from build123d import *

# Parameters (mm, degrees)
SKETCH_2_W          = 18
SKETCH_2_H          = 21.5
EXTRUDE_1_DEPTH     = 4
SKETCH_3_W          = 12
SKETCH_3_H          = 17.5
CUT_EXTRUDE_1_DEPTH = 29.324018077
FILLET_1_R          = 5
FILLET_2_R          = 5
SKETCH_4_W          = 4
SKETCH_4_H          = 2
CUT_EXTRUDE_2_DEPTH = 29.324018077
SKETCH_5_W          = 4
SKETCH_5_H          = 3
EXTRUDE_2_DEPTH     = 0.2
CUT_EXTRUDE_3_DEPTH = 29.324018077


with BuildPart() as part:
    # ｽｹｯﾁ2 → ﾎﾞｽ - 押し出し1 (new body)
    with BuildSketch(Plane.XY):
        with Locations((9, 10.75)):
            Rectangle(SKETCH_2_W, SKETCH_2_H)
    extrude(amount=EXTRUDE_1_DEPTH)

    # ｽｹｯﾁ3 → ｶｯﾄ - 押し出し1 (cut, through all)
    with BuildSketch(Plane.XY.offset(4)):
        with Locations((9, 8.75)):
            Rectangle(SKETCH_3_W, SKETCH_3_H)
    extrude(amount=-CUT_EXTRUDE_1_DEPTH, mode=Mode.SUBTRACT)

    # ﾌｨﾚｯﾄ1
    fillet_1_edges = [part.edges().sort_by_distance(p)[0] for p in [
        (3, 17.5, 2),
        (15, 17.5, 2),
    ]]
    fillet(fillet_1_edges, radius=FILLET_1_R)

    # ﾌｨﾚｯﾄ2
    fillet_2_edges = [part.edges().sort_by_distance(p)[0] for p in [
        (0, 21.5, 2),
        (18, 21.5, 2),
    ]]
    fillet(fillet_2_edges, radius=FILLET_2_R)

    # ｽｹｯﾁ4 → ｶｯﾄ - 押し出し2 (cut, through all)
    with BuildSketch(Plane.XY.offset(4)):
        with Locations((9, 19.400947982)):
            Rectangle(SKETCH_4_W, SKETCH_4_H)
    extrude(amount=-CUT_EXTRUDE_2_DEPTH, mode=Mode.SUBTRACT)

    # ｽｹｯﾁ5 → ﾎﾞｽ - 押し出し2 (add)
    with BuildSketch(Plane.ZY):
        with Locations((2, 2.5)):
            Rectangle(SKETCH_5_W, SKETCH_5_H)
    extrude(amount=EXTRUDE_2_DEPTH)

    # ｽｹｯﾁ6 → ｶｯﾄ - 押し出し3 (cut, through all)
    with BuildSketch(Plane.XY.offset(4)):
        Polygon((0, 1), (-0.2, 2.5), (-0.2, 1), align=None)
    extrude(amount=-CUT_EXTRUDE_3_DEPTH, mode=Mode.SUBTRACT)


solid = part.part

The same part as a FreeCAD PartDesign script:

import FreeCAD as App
import Part
import Sketcher
Q = App.Units.Quantity


def edges_at(feature, points):
    """Names of the edges that pass closest to the given points."""
    edges = feature.Shape.Edges
    near = lambda p: min(range(len(edges)), key=lambda i: edges[i].distToShape(Part.Vertex(*p))[0])
    return sorted({f"Edge{near(p) + 1}" for p in points})

doc = App.newDocument("Part")
params = doc.addObject("Spreadsheet::Sheet", "Params")
for row, (alias, value) in enumerate([
    ("sketch1_width", "18 mm"),
    ("sketch1_height", "21.5 mm"),
    ("pad1_length", "4 mm"),
    ("sketch2_width", "12 mm"),
    ("sketch2_height", "17.5 mm"),
    ("fillet_radius", "5 mm"),
    ("fillet2_radius", "5 mm"),
    ("sketch3_width", "4 mm"),
    ("sketch3_height", "2 mm"),
    ("sketch4_width", "3 mm"),
    ("sketch4_height", "4 mm"),
    ("pad2_length", "0.2 mm"),
    ("sketch5_width", "0.2 mm"),
    ("sketch5_height", "1.5 mm"),
], start=1):
    params.set(f"A{row}", alias)
    params.set(f"B{row}", "=" + value)
    params.setAlias(f"B{row}", alias)

body = doc.addObject("PartDesign::Body", "Body")

# Sketch on XY plane
sketch1 = body.newObject("Sketcher::SketchObject", "Sketch")
sketch1.AttachmentSupport = (doc.getObject("XY_Plane"), [""])
sketch1.MapMode = "FlatFace"
sketch1.addGeometry(Part.LineSegment(App.Vector(0, 21.5, 0), App.Vector(0, 0, 0)), False)
sketch1.addGeometry(Part.LineSegment(App.Vector(0, 0, 0), App.Vector(18, 0, 0)), False)
sketch1.addGeometry(Part.LineSegment(App.Vector(18, 0, 0), App.Vector(18, 21.5, 0)), False)
sketch1.addGeometry(Part.LineSegment(App.Vector(18, 21.5, 0), App.Vector(0, 21.5, 0)), False)
sketch1.addConstraint(Sketcher.Constraint("Coincident", 0, 2, 1, 1))
sketch1.addConstraint(Sketcher.Constraint("Coincident", 1, 2, 2, 1))
sketch1.addConstraint(Sketcher.Constraint("Coincident", 2, 2, 3, 1))
sketch1.addConstraint(Sketcher.Constraint("Coincident", 3, 2, 0, 1))
sketch1.addConstraint(Sketcher.Constraint("Vertical", 0))
sketch1.addConstraint(Sketcher.Constraint("Horizontal", 1))
sketch1.addConstraint(Sketcher.Constraint("Vertical", 2))
sketch1.addConstraint(Sketcher.Constraint("Horizontal", 3))
sketch1.addConstraint(Sketcher.Constraint("Coincident", 0, 2, -1, 1))
sketch1.addConstraint(Sketcher.Constraint("DistanceX", 1, 1, 1, 2, Q("18 mm")))
sketch1.addConstraint(Sketcher.Constraint("DistanceY", 0, 2, 0, 1, Q("21.5 mm")))
sketch1.setExpression("Constraints[9]", "Params.sketch1_width")
sketch1.setExpression("Constraints[10]", "Params.sketch1_height")
pad1 = body.newObject("PartDesign::Pad", "Pad")
pad1.Profile = sketch1
pad1.setExpression("Length", "Params.pad1_length")

# Sketch on XY plane
sketch2 = body.newObject("Sketcher::SketchObject", "Sketch001")
sketch2.AttachmentSupport = (doc.getObject("XY_Plane"), [""])
sketch2.MapMode = "FlatFace"
sketch2.AttachmentOffset = App.Placement(App.Vector(0, 0, 4), App.Rotation())
sketch2.addGeometry(Part.LineSegment(App.Vector(3, 17.5, 0), App.Vector(3, 0, 0)), False)
sketch2.addGeometry(Part.LineSegment(App.Vector(3, 0, 0), App.Vector(15, 0, 0)), False)
sketch2.addGeometry(Part.LineSegment(App.Vector(15, 0, 0), App.Vector(15, 17.5, 0)), False)
sketch2.addGeometry(Part.LineSegment(App.Vector(15, 17.5, 0), App.Vector(3, 17.5, 0)), False)
sketch2.addConstraint(Sketcher.Constraint("Coincident", 0, 2, 1, 1))
sketch2.addConstraint(Sketcher.Constraint("Coincident", 1, 2, 2, 1))
sketch2.addConstraint(Sketcher.Constraint("Coincident", 2, 2, 3, 1))
sketch2.addConstraint(Sketcher.Constraint("Coincident", 3, 2, 0, 1))
sketch2.addConstraint(Sketcher.Constraint("Vertical", 0))
sketch2.addConstraint(Sketcher.Constraint("Horizontal", 1))
sketch2.addConstraint(Sketcher.Constraint("Vertical", 2))
sketch2.addConstraint(Sketcher.Constraint("Horizontal", 3))
sketch2.addConstraint(Sketcher.Constraint("PointOnObject", 0, 2, -1))
sketch2.addConstraint(Sketcher.Constraint("DistanceX", 1, 1, 1, 2, Q("12 mm")))
sketch2.addConstraint(Sketcher.Constraint("DistanceY", 0, 2, 0, 1, Q("17.5 mm")))
sketch2.addConstraint(Sketcher.Constraint("DistanceX", -1, 1, 0, 2, Q("3 mm")))
sketch2.setExpression("Constraints[9]", "Params.sketch2_width")
sketch2.setExpression("Constraints[10]", "Params.sketch2_height")
pocket1 = body.newObject("PartDesign::Pocket", "Pocket")
pocket1.Profile = sketch2
pocket1.Type = "ThroughAll"
doc.recompute()

fillet = body.newObject("PartDesign::Fillet", "Fillet")
fillet.Base = (pocket1, edges_at(pocket1, [(3, 17.5, 2), (15, 17.5, 2)]))
fillet.setExpression("Radius", "Params.fillet_radius")
doc.recompute()

fillet2 = body.newObject("PartDesign::Fillet", "Fillet001")
fillet2.Base = (fillet, edges_at(fillet, [(0, 21.5, 2), (18, 21.5, 2)]))
fillet2.setExpression("Radius", "Params.fillet2_radius")

# Sketch on XY plane
sketch3 = body.newObject("Sketcher::SketchObject", "Sketch002")
sketch3.AttachmentSupport = (doc.getObject("XY_Plane"), [""])
sketch3.MapMode = "FlatFace"
sketch3.AttachmentOffset = App.Placement(App.Vector(0, 0, 4), App.Rotation())
sketch3.addGeometry(Part.LineSegment(App.Vector(7, 20.400948, 0), App.Vector(7, 18.400948, 0)), False)
sketch3.addGeometry(Part.LineSegment(App.Vector(7, 18.400948, 0), App.Vector(11, 18.400948, 0)), False)
sketch3.addGeometry(Part.LineSegment(App.Vector(11, 18.400948, 0), App.Vector(11, 20.400948, 0)), False)
sketch3.addGeometry(Part.LineSegment(App.Vector(11, 20.400948, 0), App.Vector(7, 20.400948, 0)), False)
sketch3.addConstraint(Sketcher.Constraint("Coincident", 0, 2, 1, 1))
sketch3.addConstraint(Sketcher.Constraint("Coincident", 1, 2, 2, 1))
sketch3.addConstraint(Sketcher.Constraint("Coincident", 2, 2, 3, 1))
sketch3.addConstraint(Sketcher.Constraint("Coincident", 3, 2, 0, 1))
sketch3.addConstraint(Sketcher.Constraint("Vertical", 0))
sketch3.addConstraint(Sketcher.Constraint("Horizontal", 1))
sketch3.addConstraint(Sketcher.Constraint("Vertical", 2))
sketch3.addConstraint(Sketcher.Constraint("Horizontal", 3))
sketch3.addConstraint(Sketcher.Constraint("DistanceX", 1, 1, 1, 2, Q("4 mm")))
sketch3.addConstraint(Sketcher.Constraint("DistanceY", 0, 2, 0, 1, Q("2 mm")))
sketch3.addConstraint(Sketcher.Constraint("DistanceX", -1, 1, 0, 2, Q("7 mm")))
sketch3.addConstraint(Sketcher.Constraint("DistanceY", -1, 1, 0, 2, Q("18.400948 mm")))
sketch3.setExpression("Constraints[8]", "Params.sketch3_width")
sketch3.setExpression("Constraints[9]", "Params.sketch3_height")
pocket2 = body.newObject("PartDesign::Pocket", "Pocket001")
pocket2.Profile = sketch3
pocket2.Type = "ThroughAll"

# Sketch on YZ plane
sketch4 = body.newObject("Sketcher::SketchObject", "Sketch003")
sketch4.AttachmentSupport = (doc.getObject("YZ_Plane"), [""])
sketch4.MapMode = "FlatFace"
sketch4.addGeometry(Part.LineSegment(App.Vector(4, 0, 0), App.Vector(1, 0, 0)), False)
sketch4.addGeometry(Part.LineSegment(App.Vector(1, 0, 0), App.Vector(1, 4, 0)), False)
sketch4.addGeometry(Part.LineSegment(App.Vector(1, 4, 0), App.Vector(4, 4, 0)), False)
sketch4.addGeometry(Part.LineSegment(App.Vector(4, 4, 0), App.Vector(4, 0, 0)), False)
sketch4.addConstraint(Sketcher.Constraint("Coincident", 0, 2, 1, 1))
sketch4.addConstraint(Sketcher.Constraint("Coincident", 1, 2, 2, 1))
sketch4.addConstraint(Sketcher.Constraint("Coincident", 2, 2, 3, 1))
sketch4.addConstraint(Sketcher.Constraint("Coincident", 3, 2, 0, 1))
sketch4.addConstraint(Sketcher.Constraint("Horizontal", 0))
sketch4.addConstraint(Sketcher.Constraint("Vertical", 1))
sketch4.addConstraint(Sketcher.Constraint("Horizontal", 2))
sketch4.addConstraint(Sketcher.Constraint("Vertical", 3))
sketch4.addConstraint(Sketcher.Constraint("PointOnObject", 0, 2, -1))
sketch4.addConstraint(Sketcher.Constraint("DistanceX", 0, 2, 0, 1, Q("3 mm")))
sketch4.addConstraint(Sketcher.Constraint("DistanceY", 1, 1, 1, 2, Q("4 mm")))
sketch4.addConstraint(Sketcher.Constraint("DistanceX", -1, 1, 0, 2, Q("1 mm")))
sketch4.setExpression("Constraints[9]", "Params.sketch4_width")
sketch4.setExpression("Constraints[10]", "Params.sketch4_height")
pad2 = body.newObject("PartDesign::Pad", "Pad001")
pad2.Profile = sketch4
pad2.setExpression("Length", "Params.pad2_length")
pad2.Reversed = True

# Sketch on XY plane
sketch5 = body.newObject("Sketcher::SketchObject", "Sketch004")
sketch5.AttachmentSupport = (doc.getObject("XY_Plane"), [""])
sketch5.MapMode = "FlatFace"
sketch5.AttachmentOffset = App.Placement(App.Vector(0, 0, 4), App.Rotation())
sketch5.addGeometry(Part.LineSegment(App.Vector(0, 1, 0), App.Vector(-0.2, 2.5, 0)), False)
sketch5.addGeometry(Part.LineSegment(App.Vector(-0.2, 2.5, 0), App.Vector(-0.2, 1, 0)), False)
sketch5.addGeometry(Part.LineSegment(App.Vector(-0.2, 1, 0), App.Vector(0, 1, 0)), False)
sketch5.addConstraint(Sketcher.Constraint("Coincident", 0, 2, 1, 1))
sketch5.addConstraint(Sketcher.Constraint("Coincident", 1, 2, 2, 1))
sketch5.addConstraint(Sketcher.Constraint("Coincident", 2, 2, 0, 1))
sketch5.addConstraint(Sketcher.Constraint("Vertical", 1))
sketch5.addConstraint(Sketcher.Constraint("Horizontal", 2))
sketch5.addConstraint(Sketcher.Constraint("PointOnObject", 2, 2, -2))
sketch5.addConstraint(Sketcher.Constraint("DistanceX", 2, 1, 2, 2, Q("0.2 mm")))
sketch5.addConstraint(Sketcher.Constraint("DistanceY", 1, 2, 1, 1, Q("1.5 mm")))
sketch5.addConstraint(Sketcher.Constraint("DistanceY", -1, 1, 1, 2, Q("1 mm")))
sketch5.setExpression("Constraints[6]", "Params.sketch5_width")
sketch5.setExpression("Constraints[7]", "Params.sketch5_height")
pocket3 = body.newObject("PartDesign::Pocket", "Pocket002")
pocket3.Profile = sketch5
pocket3.Type = "ThroughAll"

doc.recompute()
